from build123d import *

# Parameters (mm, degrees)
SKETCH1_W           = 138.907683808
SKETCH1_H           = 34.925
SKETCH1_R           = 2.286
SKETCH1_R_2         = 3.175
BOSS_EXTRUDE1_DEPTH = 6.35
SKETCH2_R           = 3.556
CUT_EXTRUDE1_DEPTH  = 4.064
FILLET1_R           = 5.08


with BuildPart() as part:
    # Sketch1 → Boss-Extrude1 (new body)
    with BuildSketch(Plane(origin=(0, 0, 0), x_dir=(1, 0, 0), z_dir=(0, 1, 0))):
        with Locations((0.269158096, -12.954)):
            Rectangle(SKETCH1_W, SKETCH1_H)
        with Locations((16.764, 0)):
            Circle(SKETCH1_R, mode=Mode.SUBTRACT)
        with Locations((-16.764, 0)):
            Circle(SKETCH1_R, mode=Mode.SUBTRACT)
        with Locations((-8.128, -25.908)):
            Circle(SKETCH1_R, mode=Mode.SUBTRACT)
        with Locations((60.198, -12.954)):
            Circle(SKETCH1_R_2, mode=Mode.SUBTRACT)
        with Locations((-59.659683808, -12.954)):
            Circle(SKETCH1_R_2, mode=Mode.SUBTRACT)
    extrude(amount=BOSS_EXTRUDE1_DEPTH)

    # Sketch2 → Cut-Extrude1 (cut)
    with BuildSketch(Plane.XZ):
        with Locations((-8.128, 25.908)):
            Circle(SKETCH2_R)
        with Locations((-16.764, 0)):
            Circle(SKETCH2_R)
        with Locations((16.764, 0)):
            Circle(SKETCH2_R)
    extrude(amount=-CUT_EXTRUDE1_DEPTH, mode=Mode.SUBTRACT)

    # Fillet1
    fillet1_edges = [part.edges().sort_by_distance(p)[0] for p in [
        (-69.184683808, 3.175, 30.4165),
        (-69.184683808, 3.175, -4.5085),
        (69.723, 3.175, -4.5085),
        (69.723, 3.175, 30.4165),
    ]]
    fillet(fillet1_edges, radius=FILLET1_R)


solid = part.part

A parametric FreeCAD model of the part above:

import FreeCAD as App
import Part
import Sketcher

V = App.Vector
Q = App.Units.Quantity


def edges_at(feature, points):
    """Names of the edges that pass closest to the given points."""
    edges = feature.Shape.Edges
    near = lambda p: min(range(len(edges)), key=lambda i: edges[i].distToShape(Part.Vertex(*p))[0])
    return sorted({f"Edge{near(p) + 1}" for p in points})

doc = App.newDocument("Part")
body = doc.addObject("PartDesign::Body", "Body")

# Sketch on XZ plane
sketch1 = body.newObject("Sketcher::SketchObject", "Sketch")
sketch1.AttachmentSupport = (doc.getObject("XZ_Plane"), [""])
sketch1.MapMode = "FlatFace"
sketch1.addGeometry([
    Part.LineSegment(V(-69.184684, -4.5085, 0), V(-69.184684, 30.4165, 0)),  # 0
    Part.LineSegment(V(-69.184684, 30.4165, 0), V(69.723, 30.4165, 0)),  # 1
    Part.LineSegment(V(69.723, 30.4165, 0), V(69.723, -4.5085, 0)),  # 2
    Part.LineSegment(V(69.723, -4.5085, 0), V(-69.184684, -4.5085, 0)),  # 3
    Part.Circle(V(-8.128, 25.908, 0), V(0, 0, 1), 2.286),  # 4
    Part.Circle(V(-59.659684, 12.954, 0), V(0, 0, 1), 3.175),  # 5
    Part.Circle(V(60.198, 12.954, 0), V(0, 0, 1), 3.175),  # 6
    Part.Circle(V(-16.764, 0, 0), V(0, 0, 1), 2.286),  # 7
    Part.Circle(V(16.764, 0, 0), V(0, 0, 1), 2.286),  # 8
], False)
sketch1.addConstraint([
    Sketcher.Constraint("Coincident", 0, 2, 1, 1),
    Sketcher.Constraint("Coincident", 1, 2, 2, 1),
    Sketcher.Constraint("Coincident", 2, 2, 3, 1),
    Sketcher.Constraint("Coincident", 3, 2, 0, 1),
    Sketcher.Constraint("Vertical", 0),
    Sketcher.Constraint("Horizontal", 1),
    Sketcher.Constraint("Vertical", 2),
    Sketcher.Constraint("Horizontal", 3),
    Sketcher.Constraint("Equal", 5, 6),
    Sketcher.Constraint("Equal", 4, 7),
    Sketcher.Constraint("Equal", 7, 8),
    Sketcher.Constraint("Symmetric", 7, 3, 8, 3, -1, 1),
    Sketcher.Constraint("PointOnObject", 7, 3, -1),
    Sketcher.Constraint("Horizontal", 5, 3, 6, 3),
    Sketcher.Constraint("Diameter", 4, Q("0.18 in")),
    Sketcher.Constraint("Diameter", 5, Q("0.25 in")),
    Sketcher.Constraint("DistanceY", 0, 1, 0, 2, Q("1.375 in")),
    Sketcher.Constraint("DistanceX", 4, 3, -1, 1, Q("0.32 in")),
    Sketcher.Constraint("DistanceY", -1, 1, 4, 3, Q("1.02 in")),
    Sketcher.Constraint("DistanceY", -1, 1, 5, 3, Q("0.51 in")),
    Sketcher.Constraint("DistanceX", -1, 1, 6, 3, Q("2.37 in")),
    Sketcher.Constraint("DistanceX", 7, 3, -1, 1, Q("0.66 in")),
    Sketcher.Constraint("DistanceX", -1, 1, 1, 2, Q("2.745 in")),
    Sketcher.Constraint("DistanceX", 0, 2, 5, 3, Q("0.375 in")),
    Sketcher.Constraint("DistanceY", 5, 3, 0, 2, Q("0.6875 in")),
    Sketcher.Constraint("DistanceX", 1, 1, 1, 2, 138.907684),
])
pad1 = body.newObject("PartDesign::Pad", "Pad")
pad1.Profile = sketch1
pad1.Length = Q("0.25 in")
pad1.Reversed = True

# Sketch on XZ plane
sketch2 = body.newObject("Sketcher::SketchObject", "Sketch001")
sketch2.AttachmentSupport = (doc.getObject("XZ_Plane"), [""])
sketch2.MapMode = "FlatFace"
sketch2.addGeometry([
    Part.Circle(V(-8.128, 25.908, 0), V(0, 0, 1), 3.556),
    Part.Circle(V(-16.764, 0, 0), V(0, 0, 1), 3.556),
    Part.Circle(V(16.764, 0, 0), V(0, 0, 1), 3.556),
], False)
sketch2.addConstraint([
    Sketcher.Constraint("Equal", 0, 1),
    Sketcher.Constraint("Equal", 1, 2),
    Sketcher.Constraint("Symmetric", 1, 3, 2, 3, -1, 1),
    Sketcher.Constraint("PointOnObject", 1, 3, -1),
    Sketcher.Constraint("Diameter", 0, Q("0.28 in")),
    Sketcher.Constraint("DistanceX", 0, 3, -1, 1, Q("0.32 in")),
    Sketcher.Constraint("DistanceY", -1, 1, 0, 3, Q("1.02 in")),
    Sketcher.Constraint("DistanceX", 1, 3, -1, 1, Q("0.66 in")),
])
pocket1 = body.newObject("PartDesign::Pocket", "Pocket")
pocket1.Profile = sketch2
pocket1.Length = Q("0.16 in")
doc.recompute()

fillet = body.newObject("PartDesign::Fillet", "Fillet")
fillet.Base = (pocket1, edges_at(pocket1, [
    (-69.185, 3.175, 30.416),
    (-69.185, 3.175, -4.508),
    (69.723, 3.175, -4.508),
    (69.723, 3.175, 30.416),
]))
fillet.Radius = Q("0.2 in")

doc.recompute()
